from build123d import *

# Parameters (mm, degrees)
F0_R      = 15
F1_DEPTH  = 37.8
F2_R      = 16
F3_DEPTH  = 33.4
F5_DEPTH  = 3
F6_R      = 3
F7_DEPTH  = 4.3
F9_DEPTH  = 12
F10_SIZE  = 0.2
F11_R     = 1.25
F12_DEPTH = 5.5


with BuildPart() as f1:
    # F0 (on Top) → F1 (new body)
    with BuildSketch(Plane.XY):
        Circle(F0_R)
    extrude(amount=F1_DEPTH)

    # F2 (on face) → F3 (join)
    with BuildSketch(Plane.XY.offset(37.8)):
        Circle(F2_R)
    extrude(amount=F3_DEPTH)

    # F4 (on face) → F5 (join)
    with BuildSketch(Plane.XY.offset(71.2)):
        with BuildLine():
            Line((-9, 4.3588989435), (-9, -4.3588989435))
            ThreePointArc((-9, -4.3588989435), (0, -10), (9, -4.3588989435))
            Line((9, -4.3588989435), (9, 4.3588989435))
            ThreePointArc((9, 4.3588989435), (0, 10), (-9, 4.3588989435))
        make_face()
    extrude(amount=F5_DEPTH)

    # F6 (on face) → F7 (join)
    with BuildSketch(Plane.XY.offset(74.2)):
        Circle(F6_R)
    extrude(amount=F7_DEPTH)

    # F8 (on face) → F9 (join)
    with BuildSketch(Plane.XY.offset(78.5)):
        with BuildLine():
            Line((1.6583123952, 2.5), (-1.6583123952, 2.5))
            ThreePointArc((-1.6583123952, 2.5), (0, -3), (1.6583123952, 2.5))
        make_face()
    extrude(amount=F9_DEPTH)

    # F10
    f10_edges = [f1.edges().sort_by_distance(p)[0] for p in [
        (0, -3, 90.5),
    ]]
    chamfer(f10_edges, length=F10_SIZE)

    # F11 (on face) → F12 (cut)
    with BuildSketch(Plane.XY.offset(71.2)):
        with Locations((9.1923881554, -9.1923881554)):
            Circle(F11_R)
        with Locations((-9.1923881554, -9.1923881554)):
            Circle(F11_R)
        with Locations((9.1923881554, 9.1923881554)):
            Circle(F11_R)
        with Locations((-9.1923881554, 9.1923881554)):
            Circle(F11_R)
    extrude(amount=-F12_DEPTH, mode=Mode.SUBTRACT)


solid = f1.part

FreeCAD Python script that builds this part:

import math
import FreeCAD as App
import Part
import Sketcher

V = App.Vector
Q = App.Units.Quantity


def edges_at(feature, points):
    """Names of the edges that pass closest to the given points."""
    edges = feature.Shape.Edges
    near = lambda p: min(range(len(edges)), key=lambda i: edges[i].distToShape(Part.Vertex(*p))[0])
    return sorted({f"Edge{near(p) + 1}" for p in points})

doc = App.newDocument("Part")
body = doc.addObject("PartDesign::Body", "Body")

# Sketch on XY plane
sketch1 = body.newObject("Sketcher::SketchObject", "Sketch")
sketch1.AttachmentSupport = (doc.getObject("XY_Plane"), [""])
sketch1.MapMode = "FlatFace"
sketch1.addGeometry(Part.Circle(V(0, 0, 0), V(0, 0, 1), 15), False)
sketch1.addConstraint([
    Sketcher.Constraint("Coincident", 0, 3, -1, 1),
    Sketcher.Constraint("Diameter", 0, Q("30 mm")),
])
pad1 = body.newObject("PartDesign::Pad", "Pad")
pad1.Profile = sketch1
pad1.Length = 37.8

# Sketch on XY plane
sketch2 = body.newObject("Sketcher::SketchObject", "Sketch001")
sketch2.AttachmentSupport = (doc.getObject("XY_Plane"), [""])
sketch2.MapMode = "FlatFace"
sketch2.AttachmentOffset = App.Placement(V(0, 0, 37.8), App.Rotation())
sketch2.addGeometry(Part.Circle(V(0, 0, 0), V(0, 0, 1), 16), False)
sketch2.addConstraint([
    Sketcher.Constraint("Coincident", 0, 3, -1, 1),
    Sketcher.Constraint("Diameter", 0, Q("32 mm")),
])
pad2 = body.newObject("PartDesign::Pad", "Pad001")
pad2.Profile = sketch2
pad2.Length = 33.4

# Sketch on XY plane
sketch3 = body.newObject("Sketcher::SketchObject", "Sketch002")
sketch3.AttachmentSupport = (doc.getObject("XY_Plane"), [""])
sketch3.MapMode = "FlatFace"
sketch3.AttachmentOffset = App.Placement(V(0, 0, 71.2), App.Rotation())
sketch3.addGeometry([
    Part.LineSegment(V(-9, 4, 0), V(-9, -4, 0)),
    Part.ArcOfCircle(Part.Circle(V(0, 0, 0), V(0, 0, 1), 10), math.radians(-154), math.radians(-26)),
    Part.LineSegment(V(9, -4, 0), V(9, 4, 0)),
    Part.ArcOfCircle(Part.Circle(V(0, 0, 0), V(0, 0, 1), 10), math.radians(26), math.radians(154)),
], False)
sketch3.addConstraint([
    Sketcher.Constraint("Coincident", 0, 2, 1, 1),
    Sketcher.Constraint("Coincident", 1, 2, 2, 1),
    Sketcher.Constraint("Coincident", 2, 2, 3, 1),
    Sketcher.Constraint("Coincident", 3, 2, 0, 1),
    Sketcher.Constraint("Vertical", 0),
    Sketcher.Constraint("Vertical", 2),
    Sketcher.Constraint("Coincident", 1, 3, -1, 1),
    Sketcher.Constraint("Coincident", 3, 3, -1, 1),
    Sketcher.Constraint("Equal", 1, 3),
    Sketcher.Constraint("Horizontal", 0, 2, 1, 2),
    Sketcher.Constraint("Radius", 1, Q("10 mm")),
    Sketcher.Constraint("DistanceX", 0, 2, -1, 1, Q("9 mm")),
])
pad3 = body.newObject("PartDesign::Pad", "Pad002")
pad3.Profile = sketch3
pad3.Length = 3

# Sketch on XY plane
sketch4 = body.newObject("Sketcher::SketchObject", "Sketch003")
sketch4.AttachmentSupport = (doc.getObject("XY_Plane"), [""])
sketch4.MapMode = "FlatFace"
sketch4.AttachmentOffset = App.Placement(V(0, 0, 74.2), App.Rotation())
sketch4.addGeometry(Part.Circle(V(0, 0, 0), V(0, 0, 1), 3), False)
sketch4.addConstraint([
    Sketcher.Constraint("Coincident", 0, 3, -1, 1),
    Sketcher.Constraint("Diameter", 0, Q("6 mm")),
])
pad4 = body.newObject("PartDesign::Pad", "Pad003")
pad4.Profile = sketch4
pad4.Length = 4.3

# Sketch on XY plane
sketch5 = body.newObject("Sketcher::SketchObject", "Sketch004")
sketch5.AttachmentSupport = (doc.getObject("XY_Plane"), [""])
sketch5.MapMode = "FlatFace"
sketch5.AttachmentOffset = App.Placement(V(0, 0, 78.5), App.Rotation())
sketch5.addGeometry([
    Part.LineSegment(V(1.7, 2.5, 0), V(-1.7, 2.5, 0)),
    Part.ArcOfCircle(Part.Circle(V(0, 0, 0), V(0, 0, 1), 3), math.radians(124), math.radians(416)),
], False)
sketch5.addConstraint([
    Sketcher.Constraint("Coincident", 0, 1, 1, 2),
    Sketcher.Constraint("Coincident", 1, 1, 0, 2),
    Sketcher.Constraint("Horizontal", 0),
    Sketcher.Constraint("Coincident", 1, 3, -1, 1),
    Sketcher.Constraint("Radius", 1, Q("3 mm")),
    Sketcher.Constraint("DistanceY", -1, 1, 0, 1, Q("2.5 mm")),
])
pad5 = body.newObject("PartDesign::Pad", "Pad004")
pad5.Profile = sketch5
pad5.Length = 12
doc.recompute()

chamfer = body.newObject("PartDesign::Chamfer", "Chamfer")
chamfer.Base = (pad5, edges_at(pad5, [(0, -3, 90.5)]))
chamfer.Size = 0.2

# Sketch on XY plane
sketch6 = body.newObject("Sketcher::SketchObject", "Sketch005")
sketch6.AttachmentSupport = (doc.getObject("XY_Plane"), [""])
sketch6.MapMode = "FlatFace"
sketch6.AttachmentOffset = App.Placement(V(0, 0, 71.2), App.Rotation())
sketch6.addGeometry([
    Part.Circle(V(9.2, -9.2, 0), V(0, 0, 1), 1.2),
    Part.Circle(V(-9.2, -9.2, 0), V(0, 0, 1), 1.2),
    Part.Circle(V(9.2, 9.2, 0), V(0, 0, 1), 1.2),
    Part.Circle(V(-9.2, 9.2, 0), V(0, 0, 1), 1.2),
], False)
sketch6.addConstraint([
    Sketcher.Constraint("Equal", 0, 1),
    Sketcher.Constraint("Equal", 1, 2),
    Sketcher.Constraint("Equal", 2, 3),
    Sketcher.Constraint("Symmetric", 1, 3, 2, 3, -1, 1),
    Sketcher.Constraint("Symmetric", 0, 3, 3, 3, -1, 1),
    Sketcher.Constraint("Symmetric", 0, 3, 1, 3, -2),
    Sketcher.Constraint("Diameter", 0, Q("2.5 mm")),
    Sketcher.Constraint("DistanceX", -1, 1, 0, 3, Q("9.192388 mm")),
    Sketcher.Constraint("DistanceY", 0, 3, -1, 1, Q("9.192388 mm")),
])
pocket1 = body.newObject("PartDesign::Pocket", "Pocket")
pocket1.Profile = sketch6
pocket1.Length = 5.5

doc.recompute()
